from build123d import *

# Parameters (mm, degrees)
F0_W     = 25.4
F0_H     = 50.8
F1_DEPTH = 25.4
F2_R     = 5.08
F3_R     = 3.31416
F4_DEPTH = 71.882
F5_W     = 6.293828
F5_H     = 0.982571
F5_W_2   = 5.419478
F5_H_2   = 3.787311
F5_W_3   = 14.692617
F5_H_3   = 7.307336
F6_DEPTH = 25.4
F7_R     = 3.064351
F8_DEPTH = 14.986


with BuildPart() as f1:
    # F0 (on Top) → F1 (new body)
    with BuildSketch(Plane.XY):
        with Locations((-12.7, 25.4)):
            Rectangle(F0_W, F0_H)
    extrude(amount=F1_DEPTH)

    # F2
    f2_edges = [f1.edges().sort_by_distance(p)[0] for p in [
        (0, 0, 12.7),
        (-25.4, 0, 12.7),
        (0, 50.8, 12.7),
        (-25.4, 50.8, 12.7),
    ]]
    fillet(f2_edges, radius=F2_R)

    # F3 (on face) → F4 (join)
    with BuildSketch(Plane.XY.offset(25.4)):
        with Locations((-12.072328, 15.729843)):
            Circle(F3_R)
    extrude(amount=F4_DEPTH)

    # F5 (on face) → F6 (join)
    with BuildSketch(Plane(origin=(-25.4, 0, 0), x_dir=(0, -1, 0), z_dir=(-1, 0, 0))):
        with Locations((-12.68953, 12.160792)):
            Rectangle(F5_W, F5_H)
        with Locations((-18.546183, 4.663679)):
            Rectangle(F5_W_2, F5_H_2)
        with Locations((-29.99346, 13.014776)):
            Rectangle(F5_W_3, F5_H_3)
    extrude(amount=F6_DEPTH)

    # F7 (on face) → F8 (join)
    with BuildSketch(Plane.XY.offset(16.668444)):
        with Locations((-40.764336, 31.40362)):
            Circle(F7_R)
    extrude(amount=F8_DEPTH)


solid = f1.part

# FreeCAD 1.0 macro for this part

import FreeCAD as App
import Part
import Sketcher
from FreeCAD import Vector
Q = App.Units.Quantity


def edges_at(feature, points):
    """Names of the edges that pass closest to the given points."""
    edges = feature.Shape.Edges
    near = lambda p: min(range(len(edges)), key=lambda i: edges[i].distToShape(Part.Vertex(*p))[0])
    return sorted({f"Edge{near(p) + 1}" for p in points})


def add_polygon(sketch, points):
    """Adds a closed chain of lines whose ends are joined by coincident constraints."""
    first, n = sketch.GeometryCount, len(points)
    for a, b in zip(points, points[1:] + points[:1]):
        sketch.addGeometry(Part.LineSegment(App.Vector(*a, 0), App.Vector(*b, 0)), False)
    for i in range(n):
        sketch.addConstraint(Sketcher.Constraint("Coincident", first + i, 2, first + (i + 1) % n, 1))

doc = App.newDocument("Part")
params = doc.addObject("Spreadsheet::Sheet", "Params")
for row, (alias, value) in enumerate([
    ("sketch1_width", "1 in"),
    ("sketch1_height", "2 in"),
    ("pad1_length", "1 in"),
    ("fillet_radius", "0.2 in"),
    ("pad2_length", "2.83 in"),
    ("pad3_length", "1 in"),
    ("pad4_length", "0.59 in"),
], start=1):
    params.set(f"A{row}", alias)
    params.set(f"B{row}", "=" + value)
    params.setAlias(f"B{row}", alias)

body = doc.addObject("PartDesign::Body", "Body")

sketch1 = body.newObject("Sketcher::SketchObject", "Sketch")
sketch1.AttachmentSupport = (doc.getObject("XY_Plane"), [""])
sketch1.MapMode = "FlatFace"
add_polygon(sketch1, [(-25, 51), (-25, 0), (0, 0), (0, 51)])
sketch1.addConstraint([
    Sketcher.Constraint("Vertical", 0),
    Sketcher.Constraint("Horizontal", 1),
    Sketcher.Constraint("Vertical", 2),
    Sketcher.Constraint("Horizontal", 3),
    Sketcher.Constraint("Coincident", 1, 2, -1, 1),
    Sketcher.Constraint("DistanceX", 1, 1, 1, 2, Q("1 in")),
    Sketcher.Constraint("DistanceY", 0, 2, 0, 1, Q("2 in")),
])
sketch1.setExpression("Constraints[9]", "Params.sketch1_width")
sketch1.setExpression("Constraints[10]", "Params.sketch1_height")
pad1 = body.newObject("PartDesign::Pad", "Pad")
pad1.Profile = sketch1
pad1.setExpression("Length", "Params.pad1_length")
doc.recompute()

fillet = body.newObject("PartDesign::Fillet", "Fillet")
fillet.Base = (pad1, edges_at(pad1, [
    (0, 0, 12.7),
    (-25.4, 0, 12.7),
    (0, 50.8, 12.7),
    (-25.4, 50.8, 12.7),
]))
fillet.setExpression("Radius", "Params.fillet_radius")

sketch2 = body.newObject("Sketcher::SketchObject", "Sketch001")
sketch2.AttachmentSupport = (doc.getObject("XY_Plane"), [""])
sketch2.MapMode = "FlatFace"
sketch2.AttachmentOffset = App.Placement(Vector(0, 0, 1 * 25.4), App.Rotation())
sketch2.addGeometry(Part.Circle(Vector(-12.1, 15.7, 0), Vector(0, 0, 1), 3.3), False)
sketch2.addConstraint([
    Sketcher.Constraint("Diameter", 0, 6.62832),
    Sketcher.Constraint("DistanceX", 0, 3, -1, 1, 12.072328),
    Sketcher.Constraint("DistanceY", -1, 1, 0, 3, 15.729843),
])
pad2 = body.newObject("PartDesign::Pad", "Pad001")
pad2.Profile = sketch2
pad2.setExpression("Length", "Params.pad2_length")

sketch3 = body.newObject("Sketcher::SketchObject", "Sketch002")
sketch3.AttachmentSupport = (doc.getObject("YZ_Plane"), [""])
sketch3.MapMode = "FlatFace"
sketch3.AttachmentOffset = App.Placement(Vector(0, 0, -1 * 25.4), App.Rotation())
add_polygon(sketch3, [(15.8, 12.7), (15.8, 11.7), (9.5, 11.7), (9.5, 12.7)])
add_polygon(sketch3, [(21.3, 6.6), (21.3, 2.8), (15.8, 2.8), (15.8, 6.6)])
add_polygon(sketch3, [(37.3, 16.7), (37.3, 9.4), (22.6, 9.4), (22.6, 16.7)])
sketch3.addConstraint([
    Sketcher.Constraint("Vertical", 0),
    Sketcher.Constraint("Horizontal", 1),
    Sketcher.Constraint("Vertical", 2),
    Sketcher.Constraint("Horizontal", 3),
    Sketcher.Constraint("Vertical", 4),
    Sketcher.Constraint("Horizontal", 5),
    Sketcher.Constraint("Vertical", 6),
    Sketcher.Constraint("Horizontal", 7),
    Sketcher.Constraint("Vertical", 8),
    Sketcher.Constraint("Horizontal", 9),
    Sketcher.Constraint("Vertical", 10),
    Sketcher.Constraint("Horizontal", 11),
    Sketcher.Constraint("Vertical", 3, 2, 5, 2),
    Sketcher.Constraint("DistanceX", 5, 2, 5, 1, 5.419478),
    Sketcher.Constraint("DistanceY", 0, 2, 0, 1, 0.982571),
    Sketcher.Constraint("DistanceY", 4, 2, 4, 1, 3.787311),
    Sketcher.Constraint("DistanceY", 8, 2, 0, 2, 2.308399),
    Sketcher.Constraint("DistanceX", 1, 2, 1, 1, 6.293828),
    Sketcher.Constraint("DistanceX", 9, 2, 9, 1, 14.692617),
    Sketcher.Constraint("DistanceY", 8, 2, 8, 1, 7.307336),
    Sketcher.Constraint("DistanceX", -1, 1, 8, 2, 37.339768),
    Sketcher.Constraint("DistanceX", 7, 2, 9, 2, 1.391229),
    Sketcher.Constraint("DistanceY", 7, 2, 10, 2, 10.11111),
    Sketcher.Constraint("DistanceY", -1, 1, 0, 2, 11.669507),
])
pad3 = body.newObject("PartDesign::Pad", "Pad002")
pad3.Profile = sketch3
pad3.setExpression("Length", "Params.pad3_length")
pad3.Reversed = True

sketch4 = body.newObject("Sketcher::SketchObject", "Sketch003")
sketch4.AttachmentSupport = (doc.getObject("XY_Plane"), [""])
sketch4.MapMode = "FlatFace"
sketch4.AttachmentOffset = App.Placement(Vector(0, 0, 16.668444), App.Rotation())
sketch4.addGeometry(Part.Circle(Vector(-40.8, 31.4, 0), Vector(0, 0, 1), 3.1), False)
sketch4.addConstraint([
    Sketcher.Constraint("Diameter", 0, 6.128702),
    Sketcher.Constraint("DistanceY", -1, 1, 0, 3, 31.40362),
    Sketcher.Constraint("DistanceX", 0, 3, -1, 1, 40.764336),
])
pad4 = body.newObject("PartDesign::Pad", "Pad003")
pad4.Profile = sketch4
pad4.setExpression("Length", "Params.pad4_length")

doc.recompute()
